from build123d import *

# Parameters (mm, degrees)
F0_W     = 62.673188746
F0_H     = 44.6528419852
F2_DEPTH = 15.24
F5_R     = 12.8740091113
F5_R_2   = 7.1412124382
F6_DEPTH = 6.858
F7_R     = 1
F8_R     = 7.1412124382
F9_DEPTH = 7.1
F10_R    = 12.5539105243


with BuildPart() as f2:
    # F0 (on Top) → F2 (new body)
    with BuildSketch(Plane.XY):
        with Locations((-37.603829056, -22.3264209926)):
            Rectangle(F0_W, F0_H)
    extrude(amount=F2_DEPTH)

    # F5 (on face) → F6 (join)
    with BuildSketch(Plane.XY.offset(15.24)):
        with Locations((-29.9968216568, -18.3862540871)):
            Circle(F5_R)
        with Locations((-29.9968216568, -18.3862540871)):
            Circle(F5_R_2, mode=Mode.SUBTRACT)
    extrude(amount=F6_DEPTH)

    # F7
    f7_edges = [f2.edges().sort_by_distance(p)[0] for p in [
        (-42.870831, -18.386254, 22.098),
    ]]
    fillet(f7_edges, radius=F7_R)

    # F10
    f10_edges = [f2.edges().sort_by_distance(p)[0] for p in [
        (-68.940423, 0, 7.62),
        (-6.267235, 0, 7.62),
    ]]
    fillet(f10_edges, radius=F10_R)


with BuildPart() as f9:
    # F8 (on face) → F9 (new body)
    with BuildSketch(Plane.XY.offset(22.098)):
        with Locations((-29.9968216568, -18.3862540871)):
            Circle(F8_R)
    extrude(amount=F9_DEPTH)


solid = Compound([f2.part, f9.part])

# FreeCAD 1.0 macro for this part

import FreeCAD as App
import Part
import Sketcher

V = App.Vector


def edges_at(feature, points):
    """Names of the edges that pass closest to the given points."""
    edges = feature.Shape.Edges
    near = lambda p: min(range(len(edges)), key=lambda i: edges[i].distToShape(Part.Vertex(*p))[0])
    return sorted({f"Edge{near(p) + 1}" for p in points})

doc = App.newDocument("Part")
params = doc.addObject("Spreadsheet::Sheet", "Params")
for row, (alias, value) in enumerate([
    ("pad1_length", "15.24 mm"),
    ("pad2_length", "6.858 mm"),
    ("fillet_radius", "1 mm"),
    ("fillet2_radius", "12.553911 mm"),
    ("pad3_length", "7.1 mm"),
], start=1):
    params.set(f"A{row}", alias)
    params.set(f"B{row}", "=" + value)
    params.setAlias(f"B{row}", alias)

body = doc.addObject("PartDesign::Body", "Body")

# Sketch on XY plane
sketch1 = body.newObject("Sketcher::SketchObject", "Sketch")
sketch1.AttachmentSupport = (doc.getObject("XY_Plane"), [""])
sketch1.MapMode = "FlatFace"
sketch1.addGeometry(Part.LineSegment(V(-68.940423, 0, 0), V(-68.940423, -44.652842, 0)), False)
sketch1.addGeometry(Part.LineSegment(V(-68.940423, -44.652842, 0), V(-6.267235, -44.652842, 0)), False)
sketch1.addGeometry(Part.LineSegment(V(-6.267235, -44.652842, 0), V(-6.267235, 0, 0)), False)
sketch1.addGeometry(Part.LineSegment(V(-6.267235, 0, 0), V(-68.940423, 0, 0)), False)
sketch1.addConstraint(Sketcher.Constraint("Coincident", 0, 2, 1, 1))
sketch1.addConstraint(Sketcher.Constraint("Coincident", 1, 2, 2, 1))
sketch1.addConstraint(Sketcher.Constraint("Coincident", 2, 2, 3, 1))
sketch1.addConstraint(Sketcher.Constraint("Coincident", 3, 2, 0, 1))
sketch1.addConstraint(Sketcher.Constraint("Vertical", 0))
sketch1.addConstraint(Sketcher.Constraint("Horizontal", 1))
sketch1.addConstraint(Sketcher.Constraint("Vertical", 2))
sketch1.addConstraint(Sketcher.Constraint("Horizontal", 3))
sketch1.addConstraint(Sketcher.Constraint("PointOnObject", 2, 2, -1))
sketch1.addConstraint(Sketcher.Constraint("DistanceX", 1, 1, 1, 2, 62.673189))
sketch1.addConstraint(Sketcher.Constraint("DistanceY", 0, 2, 0, 1, 44.652842))
sketch1.addConstraint(Sketcher.Constraint("DistanceX", 0, 2, -1, 1, 68.940423))
pad1 = body.newObject("PartDesign::Pad", "Pad")
pad1.Profile = sketch1
pad1.setExpression("Length", "Params.pad1_length")

# Sketch on XY plane
sketch2 = body.newObject("Sketcher::SketchObject", "Sketch001")
sketch2.AttachmentSupport = (doc.getObject("XY_Plane"), [""])
sketch2.MapMode = "FlatFace"
sketch2.AttachmentOffset = App.Placement(V(0, 0, 15.24), App.Rotation())
sketch2.addGeometry(Part.Circle(V(-29.996822, -18.386254, 0), V(0, 0, 1), 12.874009), False)
sketch2.addGeometry(Part.Circle(V(-29.996822, -18.386254, 0), V(0, 0, 1), 7.141212), False)
sketch2.addConstraint(Sketcher.Constraint("Coincident", 1, 3, 0, 3))
sketch2.addConstraint(Sketcher.Constraint("Diameter", 0, 25.748018))
sketch2.addConstraint(Sketcher.Constraint("Diameter", 1, 14.282425))
sketch2.addConstraint(Sketcher.Constraint("DistanceX", 0, 3, -1, 1, 29.996822))
sketch2.addConstraint(Sketcher.Constraint("DistanceY", 0, 3, -1, 1, 18.386254))
pad2 = body.newObject("PartDesign::Pad", "Pad001")
pad2.Profile = sketch2
pad2.setExpression("Length", "Params.pad2_length")
doc.recompute()

fillet = body.newObject("PartDesign::Fillet", "Fillet")
fillet.Base = (pad2, edges_at(pad2, [(-42.871, -18.386, 22.098)]))
fillet.setExpression("Radius", "Params.fillet_radius")
doc.recompute()

fillet2 = body.newObject("PartDesign::Fillet", "Fillet001")
fillet2.Base = (fillet, edges_at(fillet, [(-68.94, 0, 7.62), (-6.267, 0, 7.62)]))
fillet2.setExpression("Radius", "Params.fillet2_radius")
body2 = doc.addObject("PartDesign::Body", "Body001")

# Sketch on XY plane
sketch3 = body2.newObject("Sketcher::SketchObject", "Sketch002")
sketch3.AttachmentSupport = (doc.getObject("XY_Plane001"), [""])
sketch3.MapMode = "FlatFace"
sketch3.AttachmentOffset = App.Placement(V(0, 0, 22.098), App.Rotation())
sketch3.addGeometry(Part.Circle(V(-29.996822, -18.386254, 0), V(0, 0, 1), 7.141212), False)
sketch3.addConstraint(Sketcher.Constraint("Diameter", 0, 14.282425))
sketch3.addConstraint(Sketcher.Constraint("DistanceX", 0, 3, -1, 1, 29.996822))
sketch3.addConstraint(Sketcher.Constraint("DistanceY", 0, 3, -1, 1, 18.386254))
pad3 = body2.newObject("PartDesign::Pad", "Pad002")
pad3.Profile = sketch3
pad3.setExpression("Length", "Params.pad3_length")

doc.recompute()
